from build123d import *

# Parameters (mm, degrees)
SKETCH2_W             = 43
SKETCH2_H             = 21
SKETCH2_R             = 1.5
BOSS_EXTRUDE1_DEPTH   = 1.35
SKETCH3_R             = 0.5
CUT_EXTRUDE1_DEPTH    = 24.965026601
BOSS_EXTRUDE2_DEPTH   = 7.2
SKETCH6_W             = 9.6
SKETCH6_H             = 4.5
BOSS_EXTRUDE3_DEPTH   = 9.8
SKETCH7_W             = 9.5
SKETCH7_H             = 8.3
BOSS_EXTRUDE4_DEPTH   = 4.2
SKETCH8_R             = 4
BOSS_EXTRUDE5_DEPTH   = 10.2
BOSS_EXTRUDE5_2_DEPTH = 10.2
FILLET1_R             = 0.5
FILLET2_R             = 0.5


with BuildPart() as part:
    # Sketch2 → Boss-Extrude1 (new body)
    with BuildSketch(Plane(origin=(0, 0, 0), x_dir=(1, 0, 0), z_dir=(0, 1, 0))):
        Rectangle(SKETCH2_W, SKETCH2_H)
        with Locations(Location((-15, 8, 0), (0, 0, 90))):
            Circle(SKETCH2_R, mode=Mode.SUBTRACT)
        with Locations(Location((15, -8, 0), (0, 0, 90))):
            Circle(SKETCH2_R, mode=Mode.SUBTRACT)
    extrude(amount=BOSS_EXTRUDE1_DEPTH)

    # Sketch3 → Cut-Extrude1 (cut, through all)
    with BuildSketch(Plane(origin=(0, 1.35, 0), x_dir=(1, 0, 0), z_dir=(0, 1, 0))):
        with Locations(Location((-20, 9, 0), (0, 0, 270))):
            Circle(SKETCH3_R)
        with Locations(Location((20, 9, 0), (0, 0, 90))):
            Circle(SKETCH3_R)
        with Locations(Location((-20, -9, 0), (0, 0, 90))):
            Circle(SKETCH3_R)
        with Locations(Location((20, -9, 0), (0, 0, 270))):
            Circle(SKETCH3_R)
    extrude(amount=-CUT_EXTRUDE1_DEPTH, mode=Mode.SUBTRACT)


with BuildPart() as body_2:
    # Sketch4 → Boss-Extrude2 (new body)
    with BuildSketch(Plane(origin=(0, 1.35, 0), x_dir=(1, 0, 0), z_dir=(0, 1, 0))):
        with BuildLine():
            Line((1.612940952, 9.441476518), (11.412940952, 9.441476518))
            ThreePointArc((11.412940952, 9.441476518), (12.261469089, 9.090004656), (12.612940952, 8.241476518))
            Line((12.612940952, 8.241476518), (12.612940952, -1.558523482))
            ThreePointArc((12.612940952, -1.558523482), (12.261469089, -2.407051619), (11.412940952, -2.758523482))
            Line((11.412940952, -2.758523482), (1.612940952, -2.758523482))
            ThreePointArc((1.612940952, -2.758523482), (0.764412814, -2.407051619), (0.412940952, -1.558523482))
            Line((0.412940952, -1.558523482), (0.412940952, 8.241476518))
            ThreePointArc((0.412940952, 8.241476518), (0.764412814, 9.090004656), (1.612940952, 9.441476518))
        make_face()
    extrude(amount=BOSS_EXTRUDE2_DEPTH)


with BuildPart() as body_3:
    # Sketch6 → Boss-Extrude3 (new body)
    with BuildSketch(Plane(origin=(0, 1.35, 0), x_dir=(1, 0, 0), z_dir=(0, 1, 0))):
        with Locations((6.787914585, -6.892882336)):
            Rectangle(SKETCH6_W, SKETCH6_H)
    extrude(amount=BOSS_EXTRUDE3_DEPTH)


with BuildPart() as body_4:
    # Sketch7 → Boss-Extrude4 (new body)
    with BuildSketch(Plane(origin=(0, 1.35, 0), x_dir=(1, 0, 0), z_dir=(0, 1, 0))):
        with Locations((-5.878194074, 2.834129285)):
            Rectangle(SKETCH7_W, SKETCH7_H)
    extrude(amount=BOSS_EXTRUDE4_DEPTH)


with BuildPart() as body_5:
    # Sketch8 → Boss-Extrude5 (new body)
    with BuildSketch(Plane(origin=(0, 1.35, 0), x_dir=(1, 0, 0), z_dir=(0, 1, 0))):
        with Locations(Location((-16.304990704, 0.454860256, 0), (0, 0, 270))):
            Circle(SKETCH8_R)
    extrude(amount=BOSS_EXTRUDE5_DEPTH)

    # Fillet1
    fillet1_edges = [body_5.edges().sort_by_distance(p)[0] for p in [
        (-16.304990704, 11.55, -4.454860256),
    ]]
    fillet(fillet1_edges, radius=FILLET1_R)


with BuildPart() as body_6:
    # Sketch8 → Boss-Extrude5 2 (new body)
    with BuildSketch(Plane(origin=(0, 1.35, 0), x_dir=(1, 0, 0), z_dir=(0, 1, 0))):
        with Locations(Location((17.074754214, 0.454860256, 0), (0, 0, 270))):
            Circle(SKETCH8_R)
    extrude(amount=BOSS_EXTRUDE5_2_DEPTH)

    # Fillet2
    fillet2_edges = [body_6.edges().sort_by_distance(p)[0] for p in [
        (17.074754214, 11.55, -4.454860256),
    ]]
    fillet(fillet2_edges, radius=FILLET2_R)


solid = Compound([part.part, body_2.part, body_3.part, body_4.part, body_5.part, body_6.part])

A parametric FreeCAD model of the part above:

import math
import FreeCAD as App
import Part
import Sketcher
from FreeCAD import Vector


def edges_at(feature, points):
    """Names of the edges that pass closest to the given points."""
    edges = feature.Shape.Edges
    near = lambda p: min(range(len(edges)), key=lambda i: edges[i].distToShape(Part.Vertex(*p))[0])
    return sorted({f"Edge{near(p) + 1}" for p in points})


def add_polygon(sketch, points):
    """Adds a closed chain of lines whose ends are joined by coincident constraints."""
    first, n = sketch.GeometryCount, len(points)
    for a, b in zip(points, points[1:] + points[:1]):
        sketch.addGeometry(Part.LineSegment(App.Vector(*a, 0), App.Vector(*b, 0)), False)
    for i in range(n):
        sketch.addConstraint(Sketcher.Constraint("Coincident", first + i, 2, first + (i + 1) % n, 1))

doc = App.newDocument("Part")
body = doc.addObject("PartDesign::Body", "Body")

sketch1 = body.newObject("Sketcher::SketchObject", "Sketch")
sketch1.AttachmentSupport = (doc.getObject("XZ_Plane"), [""])
sketch1.MapMode = "FlatFace"
add_polygon(sketch1, [(-21.5, -10.5), (-21.5, 10.5), (21.5, 10.5), (21.5, -10.5)])
sketch1.addGeometry(Part.Circle(Vector(15, 8, 0), Vector(0, 0, 1), 1.5), False)
sketch1.addGeometry(Part.Circle(Vector(-15, -8, 0), Vector(0, 0, 1), 1.5), False)
sketch1.addConstraint([
    Sketcher.Constraint("Vertical", 0),
    Sketcher.Constraint("Horizontal", 1),
    Sketcher.Constraint("Vertical", 2),
    Sketcher.Constraint("Horizontal", 3),
    Sketcher.Constraint("Equal", 4, 5),
    Sketcher.Constraint("Symmetric", 4, 3, 5, 3, -1, 1),
    Sketcher.Constraint("Symmetric", 0, 2, 2, 2, -1, 1),
    Sketcher.Constraint("Diameter", 4, 3.0),
    Sketcher.Constraint("DistanceX", 1, 1, 1, 2, 43.0),
    Sketcher.Constraint("DistanceY", 0, 1, 0, 2, 21.0),
    Sketcher.Constraint("DistanceX", -1, 1, 4, 3, 15.0),
    Sketcher.Constraint("DistanceY", -1, 1, 4, 3, 8.0),
])
pad1 = body.newObject("PartDesign::Pad", "Pad")
pad1.Profile = sketch1
pad1.Length = 1.35
pad1.Reversed = True

sketch2 = body.newObject("Sketcher::SketchObject", "Sketch001")
sketch2.AttachmentSupport = (doc.getObject("XZ_Plane"), [""])
sketch2.MapMode = "FlatFace"
sketch2.AttachmentOffset = App.Placement(Vector(0, 0, -1.35), App.Rotation())
sketch2.addGeometry([
    Part.Circle(Vector(-20, -9, 0), Vector(0, 0, 1), 0.5),
    Part.Circle(Vector(20, -9, 0), Vector(0, 0, 1), 0.5),
    Part.Circle(Vector(-20, 9, 0), Vector(0, 0, 1), 0.5),
    Part.Circle(Vector(20, 9, 0), Vector(0, 0, 1), 0.5),
], False)
sketch2.addConstraint([
    Sketcher.Constraint("Equal", 0, 1),
    Sketcher.Constraint("Equal", 1, 2),
    Sketcher.Constraint("Equal", 2, 3),
    Sketcher.Constraint("Symmetric", 1, 3, 2, 3, -1, 1),
    Sketcher.Constraint("Symmetric", 0, 3, 3, 3, -1, 1),
    Sketcher.Constraint("Symmetric", 0, 3, 1, 3, -2),
    Sketcher.Constraint("Diameter", 0, 1.0),
    Sketcher.Constraint("DistanceX", 0, 3, -1, 1, 20.0),
    Sketcher.Constraint("DistanceY", 0, 3, -1, 1, 9.0),
])
pocket1 = body.newObject("PartDesign::Pocket", "Pocket")
pocket1.Profile = sketch2
pocket1.Type = "ThroughAll"
pocket1.Reversed = True
body2 = doc.addObject("PartDesign::Body", "Body001")

sketch3 = body2.newObject("Sketcher::SketchObject", "Sketch002")
sketch3.AttachmentSupport = (doc.getObject("XZ_Plane001"), [""])
sketch3.MapMode = "FlatFace"
sketch3.AttachmentOffset = App.Placement(Vector(0, 0, -1.35), App.Rotation())
sketch3.addGeometry([
    Part.LineSegment(Vector(11.412941, -9.441477, 0), Vector(1.612941, -9.441477, 0)),
    Part.ArcOfCircle(Part.Circle(Vector(1.612941, -8.241477, 0), Vector(0, 0, 1), 1.2), math.radians(180), math.radians(270)),
    Part.LineSegment(Vector(0.412941, -8.241477, 0), Vector(0.412941, 1.558523, 0)),
    Part.ArcOfCircle(Part.Circle(Vector(1.612941, 1.558523, 0), Vector(0, 0, 1), 1.2), math.radians(90), math.radians(180)),
    Part.LineSegment(Vector(1.612941, 2.758523, 0), Vector(11.412941, 2.758523, 0)),
    Part.ArcOfCircle(Part.Circle(Vector(11.412941, 1.558523, 0), Vector(0, 0, 1), 1.2), math.radians(0), math.radians(90)),
    Part.LineSegment(Vector(12.612941, 1.558523, 0), Vector(12.612941, -8.241477, 0)),
    Part.ArcOfCircle(Part.Circle(Vector(11.412941, -8.241477, 0), Vector(0, 0, 1), 1.2), math.radians(-90), math.radians(0)),
], False)
sketch3.addConstraint([
    Sketcher.Constraint("Tangent", 0, 2, 1, 2),
    Sketcher.Constraint("Tangent", 1, 1, 2, 1),
    Sketcher.Constraint("Tangent", 2, 2, 3, 2),
    Sketcher.Constraint("Tangent", 3, 1, 4, 1),
    Sketcher.Constraint("Tangent", 4, 2, 5, 2),
    Sketcher.Constraint("Tangent", 5, 1, 6, 1),
    Sketcher.Constraint("Tangent", 6, 2, 7, 2),
    Sketcher.Constraint("Tangent", 7, 1, 0, 1),
    Sketcher.Constraint("Horizontal", 0),
    Sketcher.Constraint("Vertical", 2),
    Sketcher.Constraint("Horizontal", 4),
    Sketcher.Constraint("Vertical", 6),
    Sketcher.Constraint("Equal", 1, 3),
    Sketcher.Constraint("Equal", 3, 5),
    Sketcher.Constraint("Equal", 5, 7),
    Sketcher.Constraint("Equal", 4, 2),
    Sketcher.Constraint("Radius", 1, 1.2),
    Sketcher.Constraint("DistanceX", 0, 2, 0, 1, 9.8),
    Sketcher.Constraint("DistanceX", -1, 1, 1, 3, 1.612941),
    Sketcher.Constraint("DistanceY", 1, 3, -1, 1, 8.241477),
])
pad2 = body2.newObject("PartDesign::Pad", "Pad001")
pad2.Profile = sketch3
pad2.Length = 7.2
pad2.Reversed = True
body3 = doc.addObject("PartDesign::Body", "Body002")

sketch4 = body3.newObject("Sketcher::SketchObject", "Sketch003")
sketch4.AttachmentSupport = (doc.getObject("XZ_Plane002"), [""])
sketch4.MapMode = "FlatFace"
sketch4.AttachmentOffset = App.Placement(Vector(0, 0, -1.35), App.Rotation())
add_polygon(sketch4, [(1.987915, 4.642882), (1.987915, 9.142882), (11.587915, 9.142882), (11.587915, 4.642882)])
sketch4.addConstraint([
    Sketcher.Constraint("Vertical", 0),
    Sketcher.Constraint("Horizontal", 1),
    Sketcher.Constraint("Vertical", 2),
    Sketcher.Constraint("Horizontal", 3),
    Sketcher.Constraint("DistanceX", 1, 1, 1, 2, 9.6),
    Sketcher.Constraint("DistanceY", 0, 1, 0, 2, 4.5),
    Sketcher.Constraint("DistanceX", -1, 1, 0, 2, 1.987915),
    Sketcher.Constraint("DistanceY", -1, 1, 0, 2, 9.142882),
])
pad3 = body3.newObject("PartDesign::Pad", "Pad002")
pad3.Profile = sketch4
pad3.Length = 9.8
pad3.Reversed = True
body4 = doc.addObject("PartDesign::Body", "Body003")

sketch5 = body4.newObject("Sketcher::SketchObject", "Sketch004")
sketch5.AttachmentSupport = (doc.getObject("XZ_Plane003"), [""])
sketch5.MapMode = "FlatFace"
sketch5.AttachmentOffset = App.Placement(Vector(0, 0, -1.35), App.Rotation())
add_polygon(sketch5, [(-10.628194, -6.984129), (-10.628194, 1.315871), (-1.128194, 1.315871), (-1.128194, -6.984129)])
sketch5.addConstraint([
    Sketcher.Constraint("Vertical", 0),
    Sketcher.Constraint("Horizontal", 1),
    Sketcher.Constraint("Vertical", 2),
    Sketcher.Constraint("Horizontal", 3),
    Sketcher.Constraint("DistanceX", 1, 1, 1, 2, 9.5),
    Sketcher.Constraint("DistanceY", 0, 1, 0, 2, 8.3),
    Sketcher.Constraint("DistanceY", -1, 1, 0, 2, 1.315871),
    Sketcher.Constraint("DistanceX", 0, 2, -1, 1, 10.628194),
])
pad4 = body4.newObject("PartDesign::Pad", "Pad003")
pad4.Profile = sketch5
pad4.Length = 4.2
pad4.Reversed = True
body5 = doc.addObject("PartDesign::Body", "Body004")

sketch6 = body5.newObject("Sketcher::SketchObject", "Sketch005")
sketch6.AttachmentSupport = (doc.getObject("XZ_Plane004"), [""])
sketch6.MapMode = "FlatFace"
sketch6.AttachmentOffset = App.Placement(Vector(0, 0, -1.35), App.Rotation())
sketch6.addGeometry(Part.Circle(Vector(-16.304991, -0.45486, 0), Vector(0, 0, 1), 4), False)
sketch6.addConstraint([
    Sketcher.Constraint("Diameter", 0, 8.0),
    Sketcher.Constraint("DistanceX", 0, 3, -1, 1, 16.304991),
    Sketcher.Constraint("DistanceY", 0, 3, -1, 1, 0.45486),
])
pad5 = body5.newObject("PartDesign::Pad", "Pad004")
pad5.Profile = sketch6
pad5.Length = 10.2
pad5.Reversed = True
doc.recompute()

fillet = body5.newObject("PartDesign::Fillet", "Fillet")
fillet.Base = (pad5, edges_at(pad5, [(-16.305, 11.55, -4.455)]))
fillet.Radius = 0.5
body6 = doc.addObject("PartDesign::Body", "Body005")

sketch7 = body6.newObject("Sketcher::SketchObject", "Sketch006")
sketch7.AttachmentSupport = (doc.getObject("XZ_Plane005"), [""])
sketch7.MapMode = "FlatFace"
sketch7.AttachmentOffset = App.Placement(Vector(0, 0, -1.35), App.Rotation())
sketch7.addGeometry(Part.Circle(Vector(17.074754, -0.45486, 0), Vector(0, 0, 1), 4), False)
sketch7.addConstraint([
    Sketcher.Constraint("Diameter", 0, 8.0),
    Sketcher.Constraint("DistanceY", 0, 3, -1, 1, 0.45486),
    Sketcher.Constraint("DistanceX", -1, 1, 0, 3, 17.074754),
])
pad6 = body6.newObject("PartDesign::Pad", "Pad005")
pad6.Profile = sketch7
pad6.Length = 10.2
pad6.Reversed = True
doc.recompute()

fillet2 = body6.newObject("PartDesign::Fillet", "Fillet001")
fillet2.Base = (pad6, edges_at(pad6, [(17.075, 11.55, -4.455)]))
fillet2.Radius = 0.5

doc.recompute()
